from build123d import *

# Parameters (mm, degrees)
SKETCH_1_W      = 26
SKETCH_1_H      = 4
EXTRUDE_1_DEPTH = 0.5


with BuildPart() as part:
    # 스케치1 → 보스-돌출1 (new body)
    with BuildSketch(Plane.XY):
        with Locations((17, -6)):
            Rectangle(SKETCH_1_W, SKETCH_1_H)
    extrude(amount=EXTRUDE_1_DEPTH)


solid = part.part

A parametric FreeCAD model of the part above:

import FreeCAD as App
import Part
import Sketcher
from FreeCAD import Vector


def add_polygon(sketch, points):
    """Adds a closed chain of lines whose ends are joined by coincident constraints."""
    first, n = sketch.GeometryCount, len(points)
    for a, b in zip(points, points[1:] + points[:1]):
        sketch.addGeometry(Part.LineSegment(App.Vector(*a, 0), App.Vector(*b, 0)), False)
    for i in range(n):
        sketch.addConstraint(Sketcher.Constraint("Coincident", first + i, 2, first + (i + 1) % n, 1))

doc = App.newDocument("Part")
body = doc.addObject("PartDesign::Body", "Body")

sketch1 = body.newObject("Sketcher::SketchObject", "Sketch")
sketch1.AttachmentSupport = (doc.getObject("XY_Plane"), [""])
sketch1.MapMode = "FlatFace"
add_polygon(sketch1, [(4, -4), (4, -8), (30, -8), (30, -4)])
sketch1.addConstraint(Sketcher.Constraint("Vertical", 0))
sketch1.addConstraint(Sketcher.Constraint("Horizontal", 1))
sketch1.addConstraint(Sketcher.Constraint("Vertical", 2))
sketch1.addConstraint(Sketcher.Constraint("Horizontal", 3))
sketch1.addConstraint(Sketcher.Constraint("DistanceX", 1, 1, 1, 2, 26.0))
sketch1.addConstraint(Sketcher.Constraint("DistanceY", 0, 2, 0, 1, 4.0))
sketch1.addConstraint(Sketcher.Constraint("DistanceX", -1, 1, 0, 2, 4.0))
sketch1.addConstraint(Sketcher.Constraint("DistanceY", 0, 2, -1, 1, 8.0))
pad1 = body.newObject("PartDesign::Pad", "Pad")
pad1.Profile = sketch1
pad1.Length = 0.5

doc.recompute()
